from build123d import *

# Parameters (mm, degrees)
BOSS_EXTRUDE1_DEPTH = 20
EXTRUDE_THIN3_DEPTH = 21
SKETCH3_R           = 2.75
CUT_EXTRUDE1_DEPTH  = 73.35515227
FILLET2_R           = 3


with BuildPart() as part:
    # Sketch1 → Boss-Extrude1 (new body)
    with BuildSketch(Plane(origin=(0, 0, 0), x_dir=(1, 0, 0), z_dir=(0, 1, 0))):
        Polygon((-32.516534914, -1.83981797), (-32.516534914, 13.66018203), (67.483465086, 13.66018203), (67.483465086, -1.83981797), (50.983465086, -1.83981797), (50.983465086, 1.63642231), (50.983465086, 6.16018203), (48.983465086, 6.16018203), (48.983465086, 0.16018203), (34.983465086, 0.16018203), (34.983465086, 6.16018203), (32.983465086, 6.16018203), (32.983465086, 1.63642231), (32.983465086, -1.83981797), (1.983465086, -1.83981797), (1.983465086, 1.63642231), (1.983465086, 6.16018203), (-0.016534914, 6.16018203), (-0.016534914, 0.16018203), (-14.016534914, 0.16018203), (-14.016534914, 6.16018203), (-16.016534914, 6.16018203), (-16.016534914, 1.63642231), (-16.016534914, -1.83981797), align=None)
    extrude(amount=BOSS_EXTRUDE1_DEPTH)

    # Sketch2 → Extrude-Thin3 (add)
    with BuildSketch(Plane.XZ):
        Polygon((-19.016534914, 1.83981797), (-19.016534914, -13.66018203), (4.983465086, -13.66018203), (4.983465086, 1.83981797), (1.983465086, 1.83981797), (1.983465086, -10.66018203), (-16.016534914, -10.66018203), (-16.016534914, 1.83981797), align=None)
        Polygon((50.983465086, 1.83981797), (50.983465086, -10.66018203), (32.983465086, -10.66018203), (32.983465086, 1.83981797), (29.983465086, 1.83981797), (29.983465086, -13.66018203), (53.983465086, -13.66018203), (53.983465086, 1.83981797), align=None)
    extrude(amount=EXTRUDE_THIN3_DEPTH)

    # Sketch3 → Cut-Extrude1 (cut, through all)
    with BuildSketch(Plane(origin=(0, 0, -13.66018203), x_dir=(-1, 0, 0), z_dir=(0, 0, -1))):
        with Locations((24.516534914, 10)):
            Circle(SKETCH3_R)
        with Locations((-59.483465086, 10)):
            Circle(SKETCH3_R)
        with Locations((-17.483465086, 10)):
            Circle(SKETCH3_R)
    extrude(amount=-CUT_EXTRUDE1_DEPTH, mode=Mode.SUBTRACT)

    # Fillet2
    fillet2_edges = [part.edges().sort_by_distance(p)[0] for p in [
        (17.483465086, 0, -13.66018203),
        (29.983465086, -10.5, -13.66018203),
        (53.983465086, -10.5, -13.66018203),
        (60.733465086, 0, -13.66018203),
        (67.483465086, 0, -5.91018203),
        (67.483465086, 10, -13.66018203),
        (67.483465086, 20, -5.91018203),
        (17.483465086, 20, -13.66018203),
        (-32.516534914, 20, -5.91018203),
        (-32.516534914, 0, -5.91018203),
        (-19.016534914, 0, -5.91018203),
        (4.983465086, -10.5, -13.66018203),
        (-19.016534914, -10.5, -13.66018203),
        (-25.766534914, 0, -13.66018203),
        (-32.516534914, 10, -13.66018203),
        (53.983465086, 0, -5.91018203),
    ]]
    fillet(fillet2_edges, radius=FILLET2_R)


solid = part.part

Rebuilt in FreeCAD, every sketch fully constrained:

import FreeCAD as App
import Part
import Sketcher
from FreeCAD import Vector
Q = App.Units.Quantity


def edges_at(feature, points):
    """Names of the edges that pass closest to the given points."""
    edges = feature.Shape.Edges
    near = lambda p: min(range(len(edges)), key=lambda i: edges[i].distToShape(Part.Vertex(*p))[0])
    return sorted({f"Edge{near(p) + 1}" for p in points})


def add_polygon(sketch, points):
    """Adds a closed chain of lines whose ends are joined by coincident constraints."""
    first, n = sketch.GeometryCount, len(points)
    for a, b in zip(points, points[1:] + points[:1]):
        sketch.addGeometry(Part.LineSegment(App.Vector(*a, 0), App.Vector(*b, 0)), False)
    for i in range(n):
        sketch.addConstraint(Sketcher.Constraint("Coincident", first + i, 2, first + (i + 1) % n, 1))

doc = App.newDocument("Part")
body = doc.addObject("PartDesign::Body", "Body")

sketch1 = body.newObject("Sketcher::SketchObject", "Sketch")
sketch1.AttachmentSupport = (doc.getObject("XZ_Plane"), [""])
sketch1.MapMode = "FlatFace"
add_polygon(sketch1, [(-32.5, -13.7), (-32.5, 1.8), (-16, 1.8), (-16, -6.2), (-14, -6.2), (-14, -0.2), (0, -0.2), (0, -6.2), (2, -6.2), (2, 1.8), (33, 1.8), (33, -6.2), (35, -6.2), (35, -0.2), (49, -0.2), (49, -6.2), (51, -6.2), (51, 1.8), (67.5, 1.8), (67.5, -13.7)])
sketch1.addConstraint(Sketcher.Constraint("Vertical", 0))
sketch1.addConstraint(Sketcher.Constraint("Horizontal", 1))
sketch1.addConstraint(Sketcher.Constraint("Vertical", 2))
sketch1.addConstraint(Sketcher.Constraint("Horizontal", 3))
sketch1.addConstraint(Sketcher.Constraint("Vertical", 4))
sketch1.addConstraint(Sketcher.Constraint("Horizontal", 5))
sketch1.addConstraint(Sketcher.Constraint("Vertical", 6))
sketch1.addConstraint(Sketcher.Constraint("Horizontal", 7))
sketch1.addConstraint(Sketcher.Constraint("Vertical", 8))
sketch1.addConstraint(Sketcher.Constraint("Horizontal", 9))
sketch1.addConstraint(Sketcher.Constraint("Vertical", 10))
sketch1.addConstraint(Sketcher.Constraint("Horizontal", 11))
sketch1.addConstraint(Sketcher.Constraint("Vertical", 12))
sketch1.addConstraint(Sketcher.Constraint("Horizontal", 13))
sketch1.addConstraint(Sketcher.Constraint("Vertical", 14))
sketch1.addConstraint(Sketcher.Constraint("Horizontal", 15))
sketch1.addConstraint(Sketcher.Constraint("Vertical", 16))
sketch1.addConstraint(Sketcher.Constraint("Horizontal", 17))
sketch1.addConstraint(Sketcher.Constraint("Vertical", 18))
sketch1.addConstraint(Sketcher.Constraint("Horizontal", 19))
sketch1.addConstraint(Sketcher.Constraint("Horizontal", 3, 2, 6, 2))
sketch1.addConstraint(Sketcher.Constraint("Horizontal", 1, 2, 8, 2))
sketch1.addConstraint(Sketcher.Constraint("Horizontal", 7, 2, 10, 2))
sketch1.addConstraint(Sketcher.Constraint("Horizontal", 5, 2, 12, 2))
sketch1.addConstraint(Sketcher.Constraint("Horizontal", 11, 2, 14, 2))
sketch1.addConstraint(Sketcher.Constraint("Horizontal", 9, 2, 16, 2))
sketch1.addConstraint(Sketcher.Constraint("Equal", 3, 7))
sketch1.addConstraint(Sketcher.Constraint("Equal", 7, 11))
sketch1.addConstraint(Sketcher.Constraint("Equal", 5, 13))
sketch1.addConstraint(Sketcher.Constraint("Equal", 11, 15))
sketch1.addConstraint(Sketcher.Constraint("Equal", 1, 17))
sketch1.addConstraint(Sketcher.Constraint("DistanceX", 3, 1, 3, 2, Q("2 mm")))
sketch1.addConstraint(Sketcher.Constraint("DistanceX", 5, 1, 5, 2, Q("14 mm")))
sketch1.addConstraint(Sketcher.Constraint("DistanceX", 9, 1, 9, 2, Q("31 mm")))
sketch1.addConstraint(Sketcher.Constraint("DistanceX", 19, 2, 19, 1, Q("100 mm")))
sketch1.addConstraint(Sketcher.Constraint("DistanceY", 2, 2, 2, 1, Q("8 mm")))
sketch1.addConstraint(Sketcher.Constraint("DistanceY", 4, 1, 4, 2, Q("6 mm")))
sketch1.addConstraint(Sketcher.Constraint("DistanceY", 0, 1, 0, 2, Q("15.5 mm")))
sketch1.addConstraint(Sketcher.Constraint("DistanceX", 0, 2, -1, 1, Q("32.516535 mm")))
sketch1.addConstraint(Sketcher.Constraint("DistanceY", -1, 1, 0, 2, Q("1.839818 mm")))
pad1 = body.newObject("PartDesign::Pad", "Pad")
pad1.Profile = sketch1
pad1.Length = 20
pad1.Reversed = True

sketch2 = body.newObject("Sketcher::SketchObject", "Sketch001")
sketch2.AttachmentSupport = (doc.getObject("XZ_Plane"), [""])
sketch2.MapMode = "FlatFace"
add_polygon(sketch2, [(-19, 1.8), (-19, -13.7), (5, -13.7), (5, 1.8), (2, 1.8), (2, -10.7), (-16, -10.7), (-16, 1.8)])
add_polygon(sketch2, [(51, 1.8), (51, -10.7), (33, -10.7), (33, 1.8), (30, 1.8), (30, -13.7), (54, -13.7), (54, 1.8)])
sketch2.addConstraint(Sketcher.Constraint("Vertical", 0))
sketch2.addConstraint(Sketcher.Constraint("Horizontal", 1))
sketch2.addConstraint(Sketcher.Constraint("Vertical", 2))
sketch2.addConstraint(Sketcher.Constraint("Horizontal", 3))
sketch2.addConstraint(Sketcher.Constraint("Vertical", 4))
sketch2.addConstraint(Sketcher.Constraint("Horizontal", 5))
sketch2.addConstraint(Sketcher.Constraint("Vertical", 6))
sketch2.addConstraint(Sketcher.Constraint("Horizontal", 7))
sketch2.addConstraint(Sketcher.Constraint("Vertical", 8))
sketch2.addConstraint(Sketcher.Constraint("Horizontal", 9))
sketch2.addConstraint(Sketcher.Constraint("Vertical", 10))
sketch2.addConstraint(Sketcher.Constraint("Horizontal", 11))
sketch2.addConstraint(Sketcher.Constraint("Vertical", 12))
sketch2.addConstraint(Sketcher.Constraint("Horizontal", 13))
sketch2.addConstraint(Sketcher.Constraint("Vertical", 14))
sketch2.addConstraint(Sketcher.Constraint("Horizontal", 15))
sketch2.addConstraint(Sketcher.Constraint("Horizontal", 3, 2, 6, 2))
sketch2.addConstraint(Sketcher.Constraint("Horizontal", 5, 2, 8, 2))
sketch2.addConstraint(Sketcher.Constraint("Horizontal", 7, 2, 10, 2))
sketch2.addConstraint(Sketcher.Constraint("Horizontal", 1, 2, 12, 2))
sketch2.addConstraint(Sketcher.Constraint("Horizontal", 11, 2, 14, 2))
sketch2.addConstraint(Sketcher.Constraint("Equal", 3, 7))
sketch2.addConstraint(Sketcher.Constraint("Equal", 5, 9))
sketch2.addConstraint(Sketcher.Constraint("Equal", 7, 11))
sketch2.addConstraint(Sketcher.Constraint("Equal", 1, 13))
sketch2.addConstraint(Sketcher.Constraint("DistanceX", 1, 1, 1, 2, Q("24 mm")))
sketch2.addConstraint(Sketcher.Constraint("DistanceX", 3, 2, 3, 1, Q("3 mm")))
sketch2.addConstraint(Sketcher.Constraint("DistanceY", 0, 2, 0, 1, Q("15.5 mm")))
sketch2.addConstraint(Sketcher.Constraint("DistanceY", 4, 2, 4, 1, Q("12.5 mm")))
sketch2.addConstraint(Sketcher.Constraint("DistanceX", 1, 2, 8, 2, Q("46 mm")))
sketch2.addConstraint(Sketcher.Constraint("DistanceX", 0, 2, -1, 1, Q("19.016535 mm")))
sketch2.addConstraint(Sketcher.Constraint("DistanceY", 0, 2, -1, 1, Q("13.660182 mm")))
pad2 = body.newObject("PartDesign::Pad", "Pad001")
pad2.Profile = sketch2
pad2.Length = 21

sketch3 = body.newObject("Sketcher::SketchObject", "Sketch002")
sketch3.AttachmentSupport = (doc.getObject("XY_Plane"), [""])
sketch3.MapMode = "FlatFace"
sketch3.AttachmentOffset = App.Placement(Vector(0, 0, -13.660182), App.Rotation())
sketch3.addGeometry(Part.Circle(Vector(-24.5, 10, 0), Vector(0, 0, 1), 2.8), False)
sketch3.addGeometry(Part.Circle(Vector(59.5, 10, 0), Vector(0, 0, 1), 2.8), False)
sketch3.addGeometry(Part.Circle(Vector(17.5, 10, 0), Vector(0, 0, 1), 2.8), False)
sketch3.addConstraint(Sketcher.Constraint("Equal", 0, 1))
sketch3.addConstraint(Sketcher.Constraint("Equal", 1, 2))
sketch3.addConstraint(Sketcher.Constraint("Horizontal", 0, 3, 1, 3))
sketch3.addConstraint(Sketcher.Constraint("Horizontal", 1, 3, 2, 3))
sketch3.addConstraint(Sketcher.Constraint("Diameter", 0, Q("5.5 mm")))
sketch3.addConstraint(Sketcher.Constraint("DistanceY", -1, 1, 0, 3, Q("10 mm")))
sketch3.addConstraint(Sketcher.Constraint("DistanceX", 0, 3, 1, 3, Q("84 mm")))
sketch3.addConstraint(Sketcher.Constraint("DistanceX", 0, 3, 2, 3, Q("42 mm")))
sketch3.addConstraint(Sketcher.Constraint("DistanceX", 0, 3, -1, 1, Q("24.516535 mm")))
pocket1 = body.newObject("PartDesign::Pocket", "Pocket")
pocket1.Profile = sketch3
pocket1.Type = "ThroughAll"
pocket1.Reversed = True
doc.recompute()

fillet = body.newObject("PartDesign::Fillet", "Fillet")
fillet.Base = (pocket1, edges_at(pocket1, [
    (17.483, 0, -13.66),
    (29.983, -10.5, -13.66),
    (53.983, -10.5, -13.66),
    (60.733, 0, -13.66),
    (67.483, 0, -5.91),
    (67.483, 10, -13.66),
    (67.483, 20, -5.91),
    (17.483, 20, -13.66),
    (-32.517, 20, -5.91),
    (-32.517, 0, -5.91),
    (-19.017, 0, -5.91),
    (4.983, -10.5, -13.66),
    (-19.017, -10.5, -13.66),
    (-25.767, 0, -13.66),
    (-32.517, 10, -13.66),
    (53.983, 0, -5.91),
]))
fillet.Radius = 3

doc.recompute()
